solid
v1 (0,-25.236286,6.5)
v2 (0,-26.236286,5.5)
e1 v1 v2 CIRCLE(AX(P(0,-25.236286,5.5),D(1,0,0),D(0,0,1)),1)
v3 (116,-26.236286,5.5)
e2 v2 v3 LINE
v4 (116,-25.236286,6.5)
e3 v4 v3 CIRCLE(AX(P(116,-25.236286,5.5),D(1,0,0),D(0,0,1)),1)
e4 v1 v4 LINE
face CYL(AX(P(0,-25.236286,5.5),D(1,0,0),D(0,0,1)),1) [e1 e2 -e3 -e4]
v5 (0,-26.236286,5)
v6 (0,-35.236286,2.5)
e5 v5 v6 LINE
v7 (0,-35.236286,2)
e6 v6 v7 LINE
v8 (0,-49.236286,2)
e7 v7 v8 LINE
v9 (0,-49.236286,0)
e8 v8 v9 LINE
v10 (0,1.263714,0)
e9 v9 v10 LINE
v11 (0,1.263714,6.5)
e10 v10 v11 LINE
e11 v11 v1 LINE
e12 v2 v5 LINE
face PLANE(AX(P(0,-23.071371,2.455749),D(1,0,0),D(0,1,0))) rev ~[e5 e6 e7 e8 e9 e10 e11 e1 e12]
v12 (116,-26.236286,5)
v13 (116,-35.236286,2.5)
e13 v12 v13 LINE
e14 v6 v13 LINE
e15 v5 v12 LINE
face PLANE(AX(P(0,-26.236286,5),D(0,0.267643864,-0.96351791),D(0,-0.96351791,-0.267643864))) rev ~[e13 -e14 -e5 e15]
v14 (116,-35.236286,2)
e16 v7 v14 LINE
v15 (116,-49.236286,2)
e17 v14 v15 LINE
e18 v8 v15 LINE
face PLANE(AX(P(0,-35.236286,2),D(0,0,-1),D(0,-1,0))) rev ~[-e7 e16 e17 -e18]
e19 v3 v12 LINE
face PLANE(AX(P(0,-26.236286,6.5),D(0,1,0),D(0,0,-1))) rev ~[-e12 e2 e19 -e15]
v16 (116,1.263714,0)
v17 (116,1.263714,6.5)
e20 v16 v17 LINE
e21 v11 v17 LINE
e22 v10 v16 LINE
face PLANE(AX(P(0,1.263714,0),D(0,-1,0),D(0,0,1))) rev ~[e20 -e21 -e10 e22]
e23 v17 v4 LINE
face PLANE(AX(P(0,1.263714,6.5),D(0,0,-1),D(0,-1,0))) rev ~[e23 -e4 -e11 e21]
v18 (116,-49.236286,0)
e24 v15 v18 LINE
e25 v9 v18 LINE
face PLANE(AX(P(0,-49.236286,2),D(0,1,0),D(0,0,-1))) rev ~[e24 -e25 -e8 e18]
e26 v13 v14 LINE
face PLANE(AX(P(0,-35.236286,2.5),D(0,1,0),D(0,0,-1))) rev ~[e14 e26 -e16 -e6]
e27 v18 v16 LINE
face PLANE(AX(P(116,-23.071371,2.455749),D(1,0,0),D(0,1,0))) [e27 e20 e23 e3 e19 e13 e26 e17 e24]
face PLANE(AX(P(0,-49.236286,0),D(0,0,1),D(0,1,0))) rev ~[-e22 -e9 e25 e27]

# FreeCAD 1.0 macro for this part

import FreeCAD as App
import Part
import Sketcher

V = App.Vector


def edges_at(feature, points):
    """Names of the edges that pass closest to the given points."""
    edges = feature.Shape.Edges
    near = lambda p: min(range(len(edges)), key=lambda i: edges[i].distToShape(Part.Vertex(*p))[0])
    return sorted({f"Edge{near(p) + 1}" for p in points})


def add_polygon(sketch, points):
    """Adds a closed chain of lines whose ends are joined by coincident constraints."""
    first, n = sketch.GeometryCount, len(points)
    for a, b in zip(points, points[1:] + points[:1]):
        sketch.addGeometry(Part.LineSegment(App.Vector(*a, 0), App.Vector(*b, 0)), False)
    for i in range(n):
        sketch.addConstraint(Sketcher.Constraint("Coincident", first + i, 2, first + (i + 1) % n, 1))

doc = App.newDocument("Part")
params = doc.addObject("Spreadsheet::Sheet", "Params")
for row, (alias, value) in enumerate([
    ("sketch1_width", "14 mm"),
    ("sketch1_height", "2 mm"),
    ("sketch1_width2", "50.5 mm"),
    ("sketch1_width3", "27.5 mm"),
    ("sketch1_height2", "6.5 mm"),
    ("pad1_length", "116 mm"),
    ("fillet_radius", "1 mm"),
], start=1):
    params.set(f"A{row}", alias)
    params.set(f"B{row}", "=" + value)
    params.setAlias(f"B{row}", alias)

body = doc.addObject("PartDesign::Body", "Body")

# Sketch on YZ plane
sketch1 = body.newObject("Sketcher::SketchObject", "Sketch")
sketch1.AttachmentSupport = (doc.getObject("YZ_Plane"), [""])
sketch1.MapMode = "FlatFace"
add_polygon(sketch1, [(-49.2, 2), (-49.2, 0), (1.3, 0), (1.3, 6.5), (-26.2, 6.5), (-26.2, 5), (-35.2, 2.5), (-35.2, 2)])  # lines 0-7
sketch1.addConstraint([
    Sketcher.Constraint("Vertical", 0),
    Sketcher.Constraint("Horizontal", 1),
    Sketcher.Constraint("Vertical", 2),
    Sketcher.Constraint("Horizontal", 3),
    Sketcher.Constraint("Vertical", 4),
    Sketcher.Constraint("Vertical", 6),
    Sketcher.Constraint("Horizontal", 7),
    Sketcher.Constraint("PointOnObject", 0, 2, -1),
    Sketcher.Constraint("DistanceX", 7, 2, 7, 1, 14.0),
    Sketcher.Constraint("DistanceY", 0, 2, 0, 1, 2.0),
    Sketcher.Constraint("DistanceX", 1, 1, 1, 2, 50.5),
    Sketcher.Constraint("DistanceX", 3, 2, 3, 1, 27.5),
    Sketcher.Constraint("DistanceY", 2, 1, 2, 2, 6.5),
    Sketcher.Constraint("DistanceY", 4, 2, 4, 1, 1.5),
    Sketcher.Constraint("DistanceY", 6, 2, 6, 1, 0.5),
    Sketcher.Constraint("DistanceX", 0, 2, -1, 1, 49.236286),
])
sketch1.setExpression("Constraints[16]", "Params.sketch1_width")
sketch1.setExpression("Constraints[17]", "Params.sketch1_height")
sketch1.setExpression("Constraints[18]", "Params.sketch1_width2")
sketch1.setExpression("Constraints[19]", "Params.sketch1_width3")
sketch1.setExpression("Constraints[20]", "Params.sketch1_height2")
pad1 = body.newObject("PartDesign::Pad", "Pad")
pad1.Profile = sketch1
pad1.setExpression("Length", "Params.pad1_length")
doc.recompute()

fillet = body.newObject("PartDesign::Fillet", "Fillet")
fillet.Base = (pad1, edges_at(pad1, [(58, -26.236, 6.5)]))
fillet.setExpression("Radius", "Params.fillet_radius")

doc.recompute()
